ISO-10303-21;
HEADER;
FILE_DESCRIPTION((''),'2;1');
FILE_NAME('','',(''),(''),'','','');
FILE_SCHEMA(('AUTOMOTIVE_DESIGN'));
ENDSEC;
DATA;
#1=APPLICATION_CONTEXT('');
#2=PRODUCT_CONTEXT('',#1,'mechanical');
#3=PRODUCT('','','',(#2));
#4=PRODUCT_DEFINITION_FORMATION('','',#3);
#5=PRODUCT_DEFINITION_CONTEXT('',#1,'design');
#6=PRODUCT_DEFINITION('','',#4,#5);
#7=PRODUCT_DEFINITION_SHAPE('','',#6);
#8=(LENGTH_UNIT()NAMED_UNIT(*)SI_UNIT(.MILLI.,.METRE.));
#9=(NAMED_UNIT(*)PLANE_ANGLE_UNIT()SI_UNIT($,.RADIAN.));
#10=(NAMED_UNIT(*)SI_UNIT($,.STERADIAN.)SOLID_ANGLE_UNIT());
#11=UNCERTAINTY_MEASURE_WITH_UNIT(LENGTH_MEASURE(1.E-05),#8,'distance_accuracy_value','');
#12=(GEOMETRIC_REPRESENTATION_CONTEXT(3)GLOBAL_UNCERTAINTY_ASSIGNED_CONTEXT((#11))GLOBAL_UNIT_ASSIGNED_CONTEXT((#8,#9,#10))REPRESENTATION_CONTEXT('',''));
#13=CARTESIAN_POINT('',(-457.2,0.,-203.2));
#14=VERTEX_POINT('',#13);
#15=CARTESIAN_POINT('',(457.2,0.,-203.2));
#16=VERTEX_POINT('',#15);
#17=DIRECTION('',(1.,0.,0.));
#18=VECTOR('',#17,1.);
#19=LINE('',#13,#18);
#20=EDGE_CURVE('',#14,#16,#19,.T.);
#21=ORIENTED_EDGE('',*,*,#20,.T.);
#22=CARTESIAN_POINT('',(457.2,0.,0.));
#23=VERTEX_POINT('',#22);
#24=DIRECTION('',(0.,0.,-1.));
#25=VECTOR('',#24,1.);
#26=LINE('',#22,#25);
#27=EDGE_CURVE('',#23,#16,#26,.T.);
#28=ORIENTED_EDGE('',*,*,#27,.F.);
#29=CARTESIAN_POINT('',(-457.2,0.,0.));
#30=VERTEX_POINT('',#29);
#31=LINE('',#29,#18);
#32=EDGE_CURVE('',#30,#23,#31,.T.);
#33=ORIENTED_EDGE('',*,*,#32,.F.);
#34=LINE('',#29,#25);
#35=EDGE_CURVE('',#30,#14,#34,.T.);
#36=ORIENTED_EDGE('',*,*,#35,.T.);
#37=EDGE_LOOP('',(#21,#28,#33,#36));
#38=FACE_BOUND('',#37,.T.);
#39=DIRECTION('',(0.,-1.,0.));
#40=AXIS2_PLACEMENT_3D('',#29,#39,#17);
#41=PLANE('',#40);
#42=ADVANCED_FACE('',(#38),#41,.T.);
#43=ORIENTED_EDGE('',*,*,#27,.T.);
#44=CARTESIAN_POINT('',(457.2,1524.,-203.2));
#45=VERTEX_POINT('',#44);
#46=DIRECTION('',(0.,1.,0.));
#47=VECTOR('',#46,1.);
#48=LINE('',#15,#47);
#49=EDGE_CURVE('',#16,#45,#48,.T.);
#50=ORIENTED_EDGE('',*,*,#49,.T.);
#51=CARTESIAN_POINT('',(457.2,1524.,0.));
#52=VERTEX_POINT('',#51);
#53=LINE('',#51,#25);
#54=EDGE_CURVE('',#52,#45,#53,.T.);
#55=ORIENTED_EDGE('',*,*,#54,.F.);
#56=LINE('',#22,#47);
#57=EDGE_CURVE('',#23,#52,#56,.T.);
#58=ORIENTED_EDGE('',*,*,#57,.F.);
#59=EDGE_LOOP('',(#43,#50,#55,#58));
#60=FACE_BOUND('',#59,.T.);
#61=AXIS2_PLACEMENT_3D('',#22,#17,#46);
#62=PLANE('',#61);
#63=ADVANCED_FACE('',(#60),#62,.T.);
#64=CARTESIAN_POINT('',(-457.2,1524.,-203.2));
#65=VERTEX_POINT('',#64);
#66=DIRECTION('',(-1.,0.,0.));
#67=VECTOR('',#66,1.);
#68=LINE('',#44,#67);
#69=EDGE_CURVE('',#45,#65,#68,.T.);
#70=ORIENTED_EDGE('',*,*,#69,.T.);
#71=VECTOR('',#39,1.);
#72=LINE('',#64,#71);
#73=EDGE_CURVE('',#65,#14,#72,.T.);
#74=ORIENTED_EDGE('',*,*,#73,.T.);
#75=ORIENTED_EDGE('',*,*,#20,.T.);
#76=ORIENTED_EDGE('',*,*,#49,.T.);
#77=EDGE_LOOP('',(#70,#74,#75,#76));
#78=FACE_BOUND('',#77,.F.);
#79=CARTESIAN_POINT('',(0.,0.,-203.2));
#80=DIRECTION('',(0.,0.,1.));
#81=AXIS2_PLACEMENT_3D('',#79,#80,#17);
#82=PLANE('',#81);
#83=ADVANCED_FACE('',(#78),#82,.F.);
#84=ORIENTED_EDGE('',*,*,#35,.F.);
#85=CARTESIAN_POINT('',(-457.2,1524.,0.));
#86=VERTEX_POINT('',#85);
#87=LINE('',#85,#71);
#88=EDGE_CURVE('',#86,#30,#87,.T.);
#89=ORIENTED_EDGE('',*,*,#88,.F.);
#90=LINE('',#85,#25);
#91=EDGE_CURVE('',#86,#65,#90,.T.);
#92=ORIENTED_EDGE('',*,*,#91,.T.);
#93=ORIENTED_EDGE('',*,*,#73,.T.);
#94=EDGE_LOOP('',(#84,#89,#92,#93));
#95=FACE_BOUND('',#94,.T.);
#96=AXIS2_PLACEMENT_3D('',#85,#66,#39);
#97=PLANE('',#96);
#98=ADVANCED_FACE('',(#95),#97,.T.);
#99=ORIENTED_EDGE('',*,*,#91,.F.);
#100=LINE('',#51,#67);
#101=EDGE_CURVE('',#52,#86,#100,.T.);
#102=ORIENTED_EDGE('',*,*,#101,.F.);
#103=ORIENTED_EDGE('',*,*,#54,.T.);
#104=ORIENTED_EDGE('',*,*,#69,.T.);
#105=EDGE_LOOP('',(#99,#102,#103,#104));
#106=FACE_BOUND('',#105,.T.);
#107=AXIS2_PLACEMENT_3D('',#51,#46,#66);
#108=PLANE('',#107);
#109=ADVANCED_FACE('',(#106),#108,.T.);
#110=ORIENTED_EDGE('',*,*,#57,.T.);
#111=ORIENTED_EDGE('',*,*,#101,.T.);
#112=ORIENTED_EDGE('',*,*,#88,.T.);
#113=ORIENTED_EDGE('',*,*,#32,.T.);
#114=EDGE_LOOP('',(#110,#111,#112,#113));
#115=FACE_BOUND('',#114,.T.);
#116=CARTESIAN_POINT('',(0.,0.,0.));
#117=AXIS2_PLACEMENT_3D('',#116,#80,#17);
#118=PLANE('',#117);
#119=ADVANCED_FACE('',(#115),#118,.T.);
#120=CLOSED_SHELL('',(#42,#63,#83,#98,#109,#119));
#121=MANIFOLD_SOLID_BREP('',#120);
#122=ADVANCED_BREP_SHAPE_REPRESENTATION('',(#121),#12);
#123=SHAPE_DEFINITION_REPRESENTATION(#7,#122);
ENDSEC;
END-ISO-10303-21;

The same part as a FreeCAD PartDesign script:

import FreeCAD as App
import Part
import Sketcher

V = App.Vector
Q = App.Units.Quantity


def add_polygon(sketch, points):
    """Adds a closed chain of lines whose ends are joined by coincident constraints."""
    first, n = sketch.GeometryCount, len(points)
    for a, b in zip(points, points[1:] + points[:1]):
        sketch.addGeometry(Part.LineSegment(App.Vector(*a, 0), App.Vector(*b, 0)), False)
    for i in range(n):
        sketch.addConstraint(Sketcher.Constraint("Coincident", first + i, 2, first + (i + 1) % n, 1))

doc = App.newDocument("Part")
body = doc.addObject("PartDesign::Body", "Body")

# Sketch on XY plane
sketch1 = body.newObject("Sketcher::SketchObject", "Sketch")
sketch1.AttachmentSupport = (doc.getObject("XY_Plane"), [""])
sketch1.MapMode = "FlatFace"
add_polygon(sketch1, [(-457, 1524), (-457, 0), (457, 0), (457, 1524)])  # lines 0-3
sketch1.addConstraint(Sketcher.Constraint("Vertical", 0))
sketch1.addConstraint(Sketcher.Constraint("Horizontal", 1))
sketch1.addConstraint(Sketcher.Constraint("Vertical", 2))
sketch1.addConstraint(Sketcher.Constraint("Horizontal", 3))
sketch1.addConstraint(Sketcher.Constraint("Symmetric", 0, 2, 1, 2, -1, 1))
sketch1.addConstraint(Sketcher.Constraint("DistanceX", 1, 1, 1, 2, Q("36 in")))
sketch1.addConstraint(Sketcher.Constraint("DistanceY", 0, 2, 0, 1, Q("60 in")))
pad1 = body.newObject("PartDesign::Pad", "Pad")
pad1.Profile = sketch1
pad1.Length = Q("8 in")
pad1.Reversed = True

doc.recompute()
